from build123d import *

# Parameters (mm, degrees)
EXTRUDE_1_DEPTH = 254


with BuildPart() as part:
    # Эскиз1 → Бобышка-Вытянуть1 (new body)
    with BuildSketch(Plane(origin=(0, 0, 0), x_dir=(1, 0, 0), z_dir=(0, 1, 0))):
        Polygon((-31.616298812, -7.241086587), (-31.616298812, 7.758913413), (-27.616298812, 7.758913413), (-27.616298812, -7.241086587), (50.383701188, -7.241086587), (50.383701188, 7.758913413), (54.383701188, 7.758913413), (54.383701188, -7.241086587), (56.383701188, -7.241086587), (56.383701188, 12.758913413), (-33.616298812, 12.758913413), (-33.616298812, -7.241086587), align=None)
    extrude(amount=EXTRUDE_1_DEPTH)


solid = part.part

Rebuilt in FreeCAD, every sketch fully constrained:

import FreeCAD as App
import Part
import Sketcher
Q = App.Units.Quantity


def add_polygon(sketch, points):
    """Adds a closed chain of lines whose ends are joined by coincident constraints."""
    first, n = sketch.GeometryCount, len(points)
    for a, b in zip(points, points[1:] + points[:1]):
        sketch.addGeometry(Part.LineSegment(App.Vector(*a, 0), App.Vector(*b, 0)), False)
    for i in range(n):
        sketch.addConstraint(Sketcher.Constraint("Coincident", first + i, 2, first + (i + 1) % n, 1))

doc = App.newDocument("Part")
body = doc.addObject("PartDesign::Body", "Body")

sketch1 = body.newObject("Sketcher::SketchObject", "Sketch")
sketch1.AttachmentSupport = (doc.getObject("XZ_Plane"), [""])
sketch1.MapMode = "FlatFace"
add_polygon(sketch1, [(-31.6, 7.2), (-31.6, -7.8), (-27.6, -7.8), (-27.6, 7.2), (50.4, 7.2), (50.4, -7.8), (54.4, -7.8), (54.4, 7.2), (56.4, 7.2), (56.4, -12.8), (-33.6, -12.8), (-33.6, 7.2)])
sketch1.addConstraint([
    Sketcher.Constraint("Vertical", 0),
    Sketcher.Constraint("Horizontal", 1),
    Sketcher.Constraint("Vertical", 2),
    Sketcher.Constraint("Horizontal", 3),
    Sketcher.Constraint("Vertical", 4),
    Sketcher.Constraint("Horizontal", 5),
    Sketcher.Constraint("Vertical", 6),
    Sketcher.Constraint("Horizontal", 7),
    Sketcher.Constraint("Vertical", 8),
    Sketcher.Constraint("Horizontal", 9),
    Sketcher.Constraint("Vertical", 10),
    Sketcher.Constraint("Horizontal", 11),
    Sketcher.Constraint("Horizontal", 1, 2, 4, 2),
    Sketcher.Constraint("Horizontal", 3, 2, 6, 2),
    Sketcher.Constraint("Horizontal", 7, 2, 10, 2),
    Sketcher.Constraint("Equal", 1, 5),
    Sketcher.Constraint("Equal", 7, 11),
    Sketcher.Constraint("DistanceX", 1, 1, 1, 2, Q("4 mm")),
    Sketcher.Constraint("DistanceX", 3, 1, 3, 2, Q("78 mm")),
    Sketcher.Constraint("DistanceX", 7, 1, 7, 2, Q("2 mm")),
    Sketcher.Constraint("DistanceY", 0, 2, 0, 1, Q("15 mm")),
    Sketcher.Constraint("DistanceY", 8, 2, 8, 1, Q("20 mm")),
    Sketcher.Constraint("DistanceX", 0, 2, -1, 1, Q("31.616299 mm")),
    Sketcher.Constraint("DistanceY", 0, 2, -1, 1, Q("7.758913 mm")),
])
pad1 = body.newObject("PartDesign::Pad", "Pad")
pad1.Profile = sketch1
pad1.Length = 254
pad1.Reversed = True

doc.recompute()
